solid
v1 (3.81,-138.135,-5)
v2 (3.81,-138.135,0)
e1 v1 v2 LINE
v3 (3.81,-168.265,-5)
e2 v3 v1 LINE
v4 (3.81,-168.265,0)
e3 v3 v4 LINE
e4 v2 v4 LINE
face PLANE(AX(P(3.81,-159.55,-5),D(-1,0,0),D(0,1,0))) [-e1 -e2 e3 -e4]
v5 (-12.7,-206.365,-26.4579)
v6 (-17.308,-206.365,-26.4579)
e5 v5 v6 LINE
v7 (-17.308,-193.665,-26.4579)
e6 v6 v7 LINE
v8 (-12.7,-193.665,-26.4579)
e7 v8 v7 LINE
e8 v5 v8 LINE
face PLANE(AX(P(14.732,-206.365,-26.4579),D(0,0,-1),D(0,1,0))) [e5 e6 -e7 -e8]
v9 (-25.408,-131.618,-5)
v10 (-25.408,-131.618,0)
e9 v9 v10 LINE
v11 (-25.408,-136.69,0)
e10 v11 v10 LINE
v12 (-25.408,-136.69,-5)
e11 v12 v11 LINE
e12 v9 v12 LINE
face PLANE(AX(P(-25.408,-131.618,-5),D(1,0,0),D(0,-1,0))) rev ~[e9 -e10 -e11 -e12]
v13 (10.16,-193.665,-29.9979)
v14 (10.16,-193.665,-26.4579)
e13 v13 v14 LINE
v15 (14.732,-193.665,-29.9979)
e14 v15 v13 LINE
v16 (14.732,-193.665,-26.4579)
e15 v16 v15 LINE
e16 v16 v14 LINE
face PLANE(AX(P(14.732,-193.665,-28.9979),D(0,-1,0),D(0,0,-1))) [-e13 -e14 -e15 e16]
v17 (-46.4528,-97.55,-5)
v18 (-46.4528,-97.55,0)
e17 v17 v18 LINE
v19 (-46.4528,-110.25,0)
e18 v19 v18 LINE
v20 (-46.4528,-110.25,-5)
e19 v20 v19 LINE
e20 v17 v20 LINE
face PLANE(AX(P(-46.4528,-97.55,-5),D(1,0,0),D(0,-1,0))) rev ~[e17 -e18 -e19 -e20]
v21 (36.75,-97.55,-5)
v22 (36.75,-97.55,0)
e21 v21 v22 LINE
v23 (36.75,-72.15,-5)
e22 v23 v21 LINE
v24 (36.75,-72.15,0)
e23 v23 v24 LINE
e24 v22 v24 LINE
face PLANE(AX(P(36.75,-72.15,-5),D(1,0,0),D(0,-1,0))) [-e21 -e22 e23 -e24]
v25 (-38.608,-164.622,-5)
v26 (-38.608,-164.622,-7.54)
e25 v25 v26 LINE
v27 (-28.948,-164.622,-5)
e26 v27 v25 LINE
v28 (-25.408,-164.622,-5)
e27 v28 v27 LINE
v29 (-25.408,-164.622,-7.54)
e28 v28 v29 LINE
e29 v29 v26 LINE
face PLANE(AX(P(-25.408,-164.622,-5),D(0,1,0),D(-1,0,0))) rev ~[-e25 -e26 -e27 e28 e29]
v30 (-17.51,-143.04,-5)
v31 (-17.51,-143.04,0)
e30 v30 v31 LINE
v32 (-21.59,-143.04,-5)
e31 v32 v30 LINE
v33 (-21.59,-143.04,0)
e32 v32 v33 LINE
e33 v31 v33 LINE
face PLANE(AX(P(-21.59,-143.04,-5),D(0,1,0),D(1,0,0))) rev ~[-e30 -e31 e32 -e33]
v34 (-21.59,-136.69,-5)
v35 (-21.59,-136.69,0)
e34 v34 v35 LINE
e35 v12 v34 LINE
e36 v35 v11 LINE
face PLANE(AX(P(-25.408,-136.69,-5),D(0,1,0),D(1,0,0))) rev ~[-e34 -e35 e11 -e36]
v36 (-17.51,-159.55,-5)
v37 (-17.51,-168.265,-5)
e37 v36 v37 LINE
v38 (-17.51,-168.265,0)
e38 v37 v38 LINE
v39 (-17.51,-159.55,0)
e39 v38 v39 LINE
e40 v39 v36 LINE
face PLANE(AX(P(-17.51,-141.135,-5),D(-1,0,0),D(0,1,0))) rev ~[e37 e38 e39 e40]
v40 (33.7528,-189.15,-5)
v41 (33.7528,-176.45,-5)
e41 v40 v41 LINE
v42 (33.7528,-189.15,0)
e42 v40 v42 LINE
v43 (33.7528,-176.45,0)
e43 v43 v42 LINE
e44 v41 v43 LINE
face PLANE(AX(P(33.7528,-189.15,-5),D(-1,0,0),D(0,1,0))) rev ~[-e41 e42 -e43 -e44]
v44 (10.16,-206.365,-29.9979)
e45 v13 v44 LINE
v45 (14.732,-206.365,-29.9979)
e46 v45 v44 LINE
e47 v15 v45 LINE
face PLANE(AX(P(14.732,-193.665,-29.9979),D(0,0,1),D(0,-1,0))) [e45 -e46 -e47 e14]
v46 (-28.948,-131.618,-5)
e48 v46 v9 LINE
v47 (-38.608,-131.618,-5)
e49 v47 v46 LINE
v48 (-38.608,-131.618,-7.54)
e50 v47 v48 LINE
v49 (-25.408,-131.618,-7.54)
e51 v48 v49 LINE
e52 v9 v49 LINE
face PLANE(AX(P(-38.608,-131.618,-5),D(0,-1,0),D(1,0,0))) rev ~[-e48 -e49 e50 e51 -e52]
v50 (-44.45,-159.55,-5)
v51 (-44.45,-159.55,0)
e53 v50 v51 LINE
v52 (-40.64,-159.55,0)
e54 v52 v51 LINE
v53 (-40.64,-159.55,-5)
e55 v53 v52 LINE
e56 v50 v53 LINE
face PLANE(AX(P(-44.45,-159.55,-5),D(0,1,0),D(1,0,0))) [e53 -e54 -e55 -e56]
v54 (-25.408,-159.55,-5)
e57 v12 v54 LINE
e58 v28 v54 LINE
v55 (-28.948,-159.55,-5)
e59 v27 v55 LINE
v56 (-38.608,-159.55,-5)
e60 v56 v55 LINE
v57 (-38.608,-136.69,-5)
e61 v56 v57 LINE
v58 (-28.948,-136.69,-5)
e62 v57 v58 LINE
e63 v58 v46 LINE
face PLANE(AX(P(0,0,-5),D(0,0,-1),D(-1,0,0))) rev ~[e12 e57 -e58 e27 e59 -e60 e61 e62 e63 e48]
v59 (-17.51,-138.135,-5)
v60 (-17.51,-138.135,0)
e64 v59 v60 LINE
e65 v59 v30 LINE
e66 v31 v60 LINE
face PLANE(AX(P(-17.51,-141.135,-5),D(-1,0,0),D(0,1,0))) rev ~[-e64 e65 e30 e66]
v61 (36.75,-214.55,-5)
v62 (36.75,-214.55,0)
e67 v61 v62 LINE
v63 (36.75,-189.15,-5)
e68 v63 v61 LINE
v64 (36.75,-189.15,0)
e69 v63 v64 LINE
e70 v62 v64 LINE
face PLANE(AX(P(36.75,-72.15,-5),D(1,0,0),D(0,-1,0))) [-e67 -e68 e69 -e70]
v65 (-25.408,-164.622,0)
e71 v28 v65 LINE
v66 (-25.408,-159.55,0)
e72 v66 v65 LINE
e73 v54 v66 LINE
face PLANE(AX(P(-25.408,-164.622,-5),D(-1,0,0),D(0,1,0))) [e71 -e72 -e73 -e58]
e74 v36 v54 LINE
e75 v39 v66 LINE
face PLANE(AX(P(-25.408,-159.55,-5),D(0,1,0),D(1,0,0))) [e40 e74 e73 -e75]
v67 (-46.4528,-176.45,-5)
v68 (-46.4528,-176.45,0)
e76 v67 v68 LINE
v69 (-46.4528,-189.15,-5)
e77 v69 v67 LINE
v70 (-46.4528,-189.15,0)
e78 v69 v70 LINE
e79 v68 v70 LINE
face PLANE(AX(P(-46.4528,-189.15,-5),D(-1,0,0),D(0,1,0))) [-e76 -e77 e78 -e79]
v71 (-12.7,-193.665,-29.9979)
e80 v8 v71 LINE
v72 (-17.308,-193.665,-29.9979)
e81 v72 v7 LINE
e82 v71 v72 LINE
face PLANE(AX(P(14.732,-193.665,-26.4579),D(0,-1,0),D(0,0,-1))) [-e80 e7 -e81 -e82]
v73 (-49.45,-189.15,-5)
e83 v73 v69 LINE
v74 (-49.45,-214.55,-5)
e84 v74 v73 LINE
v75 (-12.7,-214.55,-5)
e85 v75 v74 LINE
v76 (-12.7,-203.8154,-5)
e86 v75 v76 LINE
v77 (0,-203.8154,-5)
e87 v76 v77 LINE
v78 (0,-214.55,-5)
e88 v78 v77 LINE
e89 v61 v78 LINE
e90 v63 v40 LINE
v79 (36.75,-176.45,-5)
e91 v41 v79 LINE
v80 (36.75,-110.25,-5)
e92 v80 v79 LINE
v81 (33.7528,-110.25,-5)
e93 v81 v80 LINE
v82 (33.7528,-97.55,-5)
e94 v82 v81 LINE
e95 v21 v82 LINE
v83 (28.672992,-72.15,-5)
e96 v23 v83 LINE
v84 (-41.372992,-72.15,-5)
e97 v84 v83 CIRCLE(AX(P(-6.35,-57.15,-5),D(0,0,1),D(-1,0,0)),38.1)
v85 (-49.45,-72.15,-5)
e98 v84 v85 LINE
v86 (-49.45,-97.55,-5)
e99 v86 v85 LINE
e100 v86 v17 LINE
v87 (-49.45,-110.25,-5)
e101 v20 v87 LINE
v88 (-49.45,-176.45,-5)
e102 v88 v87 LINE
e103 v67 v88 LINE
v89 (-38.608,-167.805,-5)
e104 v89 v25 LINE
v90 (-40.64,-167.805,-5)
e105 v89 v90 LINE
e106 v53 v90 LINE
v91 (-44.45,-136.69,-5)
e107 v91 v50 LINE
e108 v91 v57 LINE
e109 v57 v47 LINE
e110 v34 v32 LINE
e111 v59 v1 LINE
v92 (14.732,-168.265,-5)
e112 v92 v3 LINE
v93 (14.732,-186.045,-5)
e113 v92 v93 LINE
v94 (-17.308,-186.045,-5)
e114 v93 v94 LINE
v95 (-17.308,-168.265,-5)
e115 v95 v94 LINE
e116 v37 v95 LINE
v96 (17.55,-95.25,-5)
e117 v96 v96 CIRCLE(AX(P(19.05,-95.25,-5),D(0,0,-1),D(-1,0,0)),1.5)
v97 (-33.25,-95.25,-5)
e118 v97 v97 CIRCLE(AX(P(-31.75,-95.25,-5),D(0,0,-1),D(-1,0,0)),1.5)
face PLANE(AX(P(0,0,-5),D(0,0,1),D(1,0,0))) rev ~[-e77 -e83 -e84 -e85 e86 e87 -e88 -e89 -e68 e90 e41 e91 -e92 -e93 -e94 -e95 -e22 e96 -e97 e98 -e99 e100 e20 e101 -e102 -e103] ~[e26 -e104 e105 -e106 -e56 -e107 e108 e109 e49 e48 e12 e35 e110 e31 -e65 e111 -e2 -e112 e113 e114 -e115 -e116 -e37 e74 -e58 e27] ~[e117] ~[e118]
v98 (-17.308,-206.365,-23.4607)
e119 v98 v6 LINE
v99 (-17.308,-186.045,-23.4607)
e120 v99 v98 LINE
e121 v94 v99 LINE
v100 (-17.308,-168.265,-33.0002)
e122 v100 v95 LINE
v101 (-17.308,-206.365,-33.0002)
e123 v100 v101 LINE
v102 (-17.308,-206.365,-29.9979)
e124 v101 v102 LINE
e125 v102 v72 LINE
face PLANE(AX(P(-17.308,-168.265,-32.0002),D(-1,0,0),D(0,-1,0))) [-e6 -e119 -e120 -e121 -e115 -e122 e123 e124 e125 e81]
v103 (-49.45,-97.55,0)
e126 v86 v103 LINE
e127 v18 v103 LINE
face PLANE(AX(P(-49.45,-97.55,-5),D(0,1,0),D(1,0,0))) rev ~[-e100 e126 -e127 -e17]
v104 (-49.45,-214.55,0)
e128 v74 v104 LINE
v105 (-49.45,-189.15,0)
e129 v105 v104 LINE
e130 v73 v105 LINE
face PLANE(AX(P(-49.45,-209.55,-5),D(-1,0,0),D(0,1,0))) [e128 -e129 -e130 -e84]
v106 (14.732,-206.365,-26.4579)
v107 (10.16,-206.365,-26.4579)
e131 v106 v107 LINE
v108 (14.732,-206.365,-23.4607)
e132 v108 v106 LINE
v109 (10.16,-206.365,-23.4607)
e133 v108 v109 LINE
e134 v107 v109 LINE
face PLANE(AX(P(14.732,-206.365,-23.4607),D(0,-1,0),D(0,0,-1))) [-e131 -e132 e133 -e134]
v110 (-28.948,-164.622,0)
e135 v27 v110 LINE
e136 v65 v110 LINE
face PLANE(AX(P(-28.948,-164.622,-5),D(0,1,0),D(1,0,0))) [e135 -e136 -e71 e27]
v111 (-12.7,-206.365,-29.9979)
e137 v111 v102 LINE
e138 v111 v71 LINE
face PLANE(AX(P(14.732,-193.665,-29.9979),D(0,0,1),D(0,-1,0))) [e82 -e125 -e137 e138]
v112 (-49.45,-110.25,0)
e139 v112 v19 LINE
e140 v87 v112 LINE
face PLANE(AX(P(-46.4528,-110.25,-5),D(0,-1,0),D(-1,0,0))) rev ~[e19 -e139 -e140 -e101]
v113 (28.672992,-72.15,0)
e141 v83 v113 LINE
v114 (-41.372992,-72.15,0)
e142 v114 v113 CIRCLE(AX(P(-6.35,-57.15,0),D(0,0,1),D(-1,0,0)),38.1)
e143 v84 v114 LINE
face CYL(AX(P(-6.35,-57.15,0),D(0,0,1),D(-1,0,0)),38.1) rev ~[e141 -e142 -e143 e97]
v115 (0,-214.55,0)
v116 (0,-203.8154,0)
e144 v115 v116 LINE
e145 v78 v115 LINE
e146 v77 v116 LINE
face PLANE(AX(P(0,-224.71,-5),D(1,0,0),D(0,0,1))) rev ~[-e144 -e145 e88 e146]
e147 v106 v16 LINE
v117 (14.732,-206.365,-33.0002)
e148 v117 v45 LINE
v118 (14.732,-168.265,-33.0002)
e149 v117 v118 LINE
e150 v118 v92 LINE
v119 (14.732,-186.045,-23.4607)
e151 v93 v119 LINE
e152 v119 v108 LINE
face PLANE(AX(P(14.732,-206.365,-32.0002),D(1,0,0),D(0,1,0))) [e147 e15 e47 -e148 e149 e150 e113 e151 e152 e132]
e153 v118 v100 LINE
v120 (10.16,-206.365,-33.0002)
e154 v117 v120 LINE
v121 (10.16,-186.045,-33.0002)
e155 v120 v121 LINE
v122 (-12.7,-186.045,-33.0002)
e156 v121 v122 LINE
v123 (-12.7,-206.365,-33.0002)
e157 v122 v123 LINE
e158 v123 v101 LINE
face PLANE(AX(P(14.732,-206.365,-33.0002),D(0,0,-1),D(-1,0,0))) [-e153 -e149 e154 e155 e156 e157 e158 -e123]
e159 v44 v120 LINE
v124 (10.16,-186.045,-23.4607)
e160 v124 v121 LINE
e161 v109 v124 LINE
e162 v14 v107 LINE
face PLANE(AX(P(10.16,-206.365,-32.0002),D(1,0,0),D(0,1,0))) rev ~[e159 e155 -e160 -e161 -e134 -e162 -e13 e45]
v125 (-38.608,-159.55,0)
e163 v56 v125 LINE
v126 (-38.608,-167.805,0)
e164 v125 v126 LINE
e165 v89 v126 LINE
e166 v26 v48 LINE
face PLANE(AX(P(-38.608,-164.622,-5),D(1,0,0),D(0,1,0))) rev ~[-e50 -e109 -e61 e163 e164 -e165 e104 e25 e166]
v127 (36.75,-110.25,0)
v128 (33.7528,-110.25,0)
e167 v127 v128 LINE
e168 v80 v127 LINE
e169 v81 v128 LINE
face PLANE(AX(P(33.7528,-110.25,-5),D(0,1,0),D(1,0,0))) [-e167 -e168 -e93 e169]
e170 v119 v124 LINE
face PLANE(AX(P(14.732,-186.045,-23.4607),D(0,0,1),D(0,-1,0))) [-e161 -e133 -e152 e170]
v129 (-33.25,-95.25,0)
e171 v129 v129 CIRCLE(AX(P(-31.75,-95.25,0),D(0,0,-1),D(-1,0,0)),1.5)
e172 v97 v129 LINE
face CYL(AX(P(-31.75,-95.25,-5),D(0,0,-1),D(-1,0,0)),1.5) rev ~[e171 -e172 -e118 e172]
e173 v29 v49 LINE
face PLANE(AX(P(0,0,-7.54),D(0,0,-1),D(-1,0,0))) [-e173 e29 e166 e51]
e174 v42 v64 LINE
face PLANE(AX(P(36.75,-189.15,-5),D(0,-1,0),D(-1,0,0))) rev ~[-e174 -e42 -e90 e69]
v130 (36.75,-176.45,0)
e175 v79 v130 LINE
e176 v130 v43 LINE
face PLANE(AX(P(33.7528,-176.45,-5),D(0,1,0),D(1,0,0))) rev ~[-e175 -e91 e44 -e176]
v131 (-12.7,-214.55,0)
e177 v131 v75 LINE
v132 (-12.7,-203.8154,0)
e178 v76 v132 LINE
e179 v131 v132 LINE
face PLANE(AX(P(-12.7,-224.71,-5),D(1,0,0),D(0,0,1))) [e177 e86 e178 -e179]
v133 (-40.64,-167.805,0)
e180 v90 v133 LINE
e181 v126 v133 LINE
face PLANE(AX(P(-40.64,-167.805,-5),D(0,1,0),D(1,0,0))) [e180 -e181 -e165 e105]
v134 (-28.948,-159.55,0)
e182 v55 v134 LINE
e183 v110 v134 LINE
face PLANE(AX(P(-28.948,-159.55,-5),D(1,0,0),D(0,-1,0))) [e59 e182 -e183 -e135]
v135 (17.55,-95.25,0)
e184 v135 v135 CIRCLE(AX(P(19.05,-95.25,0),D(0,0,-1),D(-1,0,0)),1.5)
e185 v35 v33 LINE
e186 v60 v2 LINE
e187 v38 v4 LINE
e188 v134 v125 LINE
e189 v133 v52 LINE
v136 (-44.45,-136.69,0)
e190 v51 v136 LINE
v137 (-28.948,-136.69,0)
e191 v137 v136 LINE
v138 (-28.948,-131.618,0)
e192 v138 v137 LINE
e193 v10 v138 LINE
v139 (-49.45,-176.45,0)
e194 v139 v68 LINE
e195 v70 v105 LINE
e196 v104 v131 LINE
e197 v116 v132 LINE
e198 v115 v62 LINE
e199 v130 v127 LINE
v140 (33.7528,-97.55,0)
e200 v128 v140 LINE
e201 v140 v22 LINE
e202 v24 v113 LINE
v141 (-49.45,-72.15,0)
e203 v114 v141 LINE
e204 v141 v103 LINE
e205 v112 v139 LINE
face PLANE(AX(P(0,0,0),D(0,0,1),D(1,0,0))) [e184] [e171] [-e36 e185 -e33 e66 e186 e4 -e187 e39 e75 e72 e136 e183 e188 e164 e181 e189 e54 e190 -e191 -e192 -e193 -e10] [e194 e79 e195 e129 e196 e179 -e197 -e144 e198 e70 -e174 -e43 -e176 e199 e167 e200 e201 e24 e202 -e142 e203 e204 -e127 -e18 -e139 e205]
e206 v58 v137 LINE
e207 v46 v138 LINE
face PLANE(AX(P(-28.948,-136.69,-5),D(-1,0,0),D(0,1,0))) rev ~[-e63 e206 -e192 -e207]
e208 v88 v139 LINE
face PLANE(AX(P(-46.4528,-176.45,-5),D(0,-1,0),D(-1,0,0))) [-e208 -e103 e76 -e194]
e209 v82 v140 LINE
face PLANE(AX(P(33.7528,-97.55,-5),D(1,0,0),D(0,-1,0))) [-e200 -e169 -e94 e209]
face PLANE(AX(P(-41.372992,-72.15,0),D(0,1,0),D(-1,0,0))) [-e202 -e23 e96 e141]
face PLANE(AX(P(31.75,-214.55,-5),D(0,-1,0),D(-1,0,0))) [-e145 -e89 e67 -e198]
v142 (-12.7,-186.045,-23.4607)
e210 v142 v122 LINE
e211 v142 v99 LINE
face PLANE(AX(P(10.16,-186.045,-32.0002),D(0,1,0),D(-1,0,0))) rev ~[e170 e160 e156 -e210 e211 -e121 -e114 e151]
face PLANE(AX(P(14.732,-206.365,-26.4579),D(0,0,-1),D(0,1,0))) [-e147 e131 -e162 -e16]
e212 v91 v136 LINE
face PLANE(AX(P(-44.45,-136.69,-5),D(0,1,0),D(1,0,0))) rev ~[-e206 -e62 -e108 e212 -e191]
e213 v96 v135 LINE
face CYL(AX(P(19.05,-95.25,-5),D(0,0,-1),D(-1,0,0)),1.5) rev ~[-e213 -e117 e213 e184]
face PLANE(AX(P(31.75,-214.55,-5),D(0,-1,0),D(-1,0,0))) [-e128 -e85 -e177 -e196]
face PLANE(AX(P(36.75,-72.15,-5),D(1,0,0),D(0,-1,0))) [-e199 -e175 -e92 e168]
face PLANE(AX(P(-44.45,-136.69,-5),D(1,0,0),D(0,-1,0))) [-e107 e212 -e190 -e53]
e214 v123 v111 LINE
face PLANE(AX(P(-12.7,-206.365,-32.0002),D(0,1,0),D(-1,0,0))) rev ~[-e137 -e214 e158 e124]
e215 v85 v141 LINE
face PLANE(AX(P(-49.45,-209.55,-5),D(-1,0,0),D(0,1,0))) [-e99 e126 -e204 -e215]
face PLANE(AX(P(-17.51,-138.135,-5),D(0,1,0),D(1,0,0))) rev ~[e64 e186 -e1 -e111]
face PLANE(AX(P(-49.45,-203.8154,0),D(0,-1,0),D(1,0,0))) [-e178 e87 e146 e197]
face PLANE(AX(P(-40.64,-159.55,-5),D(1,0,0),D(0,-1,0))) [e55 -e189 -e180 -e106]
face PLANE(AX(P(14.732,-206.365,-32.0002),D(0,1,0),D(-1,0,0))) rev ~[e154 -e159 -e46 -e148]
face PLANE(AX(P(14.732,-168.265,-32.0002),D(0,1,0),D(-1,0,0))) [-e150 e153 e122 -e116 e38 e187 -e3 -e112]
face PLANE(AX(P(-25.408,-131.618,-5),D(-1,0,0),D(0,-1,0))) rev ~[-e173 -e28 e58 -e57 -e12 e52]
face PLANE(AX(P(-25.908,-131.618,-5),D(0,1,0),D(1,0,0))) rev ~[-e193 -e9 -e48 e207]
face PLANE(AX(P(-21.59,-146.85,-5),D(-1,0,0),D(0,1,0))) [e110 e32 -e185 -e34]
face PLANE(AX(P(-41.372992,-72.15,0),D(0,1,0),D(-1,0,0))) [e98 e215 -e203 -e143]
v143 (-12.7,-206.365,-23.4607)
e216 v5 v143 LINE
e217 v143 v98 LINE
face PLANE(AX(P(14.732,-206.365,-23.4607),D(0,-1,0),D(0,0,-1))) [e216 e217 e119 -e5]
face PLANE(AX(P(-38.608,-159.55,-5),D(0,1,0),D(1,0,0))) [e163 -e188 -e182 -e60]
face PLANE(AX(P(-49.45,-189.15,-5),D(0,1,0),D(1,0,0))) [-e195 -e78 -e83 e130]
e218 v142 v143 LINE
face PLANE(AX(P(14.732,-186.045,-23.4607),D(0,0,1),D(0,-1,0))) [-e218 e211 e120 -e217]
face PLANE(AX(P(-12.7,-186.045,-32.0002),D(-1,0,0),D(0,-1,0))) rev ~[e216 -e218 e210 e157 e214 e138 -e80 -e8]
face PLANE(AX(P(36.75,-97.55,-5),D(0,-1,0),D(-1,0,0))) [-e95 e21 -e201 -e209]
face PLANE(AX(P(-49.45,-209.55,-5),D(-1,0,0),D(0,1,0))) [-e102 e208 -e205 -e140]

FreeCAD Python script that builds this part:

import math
import FreeCAD as App
import Part
import Sketcher

V = App.Vector
Q = App.Units.Quantity


def add_polygon(sketch, points):
    """Adds a closed chain of lines whose ends are joined by coincident constraints."""
    first, n = sketch.GeometryCount, len(points)
    for a, b in zip(points, points[1:] + points[:1]):
        sketch.addGeometry(Part.LineSegment(App.Vector(*a, 0), App.Vector(*b, 0)), False)
    for i in range(n):
        sketch.addConstraint(Sketcher.Constraint("Coincident", first + i, 2, first + (i + 1) % n, 1))

doc = App.newDocument("Part")
body = doc.addObject("PartDesign::Body", "Body")

# Sketch on XY plane
sketch1 = body.newObject("Sketcher::SketchObject", "Sketch")
sketch1.AttachmentSupport = (doc.getObject("XY_Plane"), [""])
sketch1.MapMode = "FlatFace"
sketch1.addGeometry([
    Part.LineSegment(V(32, -210, 0), V(32, -57, 0)),
    Part.ArcOfCircle(Part.Circle(V(-6, -57, 0), V(0, 0, 1), 38), math.radians(180), math.radians(360)),
    Part.LineSegment(V(-44, -57, 0), V(-44, -210, 0)),
    Part.LineSegment(V(-44, -210, 0), V(32, -210, 0)),
], False)
sketch1.addConstraint([
    Sketcher.Constraint("Tangent", 0, 2, 1, 2),
    Sketcher.Constraint("Tangent", 1, 1, 2, 1),
    Sketcher.Constraint("Coincident", 2, 2, 3, 1),
    Sketcher.Constraint("Coincident", 3, 2, 0, 1),
    Sketcher.Constraint("Vertical", 0),
    Sketcher.Constraint("Vertical", 2),
    Sketcher.Constraint("Horizontal", 3),
    Sketcher.Constraint("Radius", 1, Q("1.5 in")),
    Sketcher.Constraint("DistanceY", 0, 1, 0, 2, Q("6 in")),
    Sketcher.Constraint("DistanceX", 1, 3, -1, 1, Q("0.25 in")),
    Sketcher.Constraint("DistanceY", 1, 3, -1, 1, Q("2.25 in")),
])
pad1 = body.newObject("PartDesign::Pad", "Pad")
pad1.Profile = sketch1
pad1.Length = 5
pad1.Reversed = True

# Sketch on XY plane
sketch2 = body.newObject("Sketcher::SketchObject", "Sketch001")
sketch2.AttachmentSupport = (doc.getObject("XY_Plane"), [""])
sketch2.MapMode = "FlatFace"
add_polygon(sketch2, [(32, -57), (-44, -57), (-44, -72), (32, -72)])  # lines 0-3
sketch2.addConstraint([
    Sketcher.Constraint("Horizontal", 0),
    Sketcher.Constraint("Vertical", 1),
    Sketcher.Constraint("Horizontal", 2),
    Sketcher.Constraint("Vertical", 3),
    Sketcher.Constraint("DistanceX", 0, 2, 0, 1, Q("3 in")),
    Sketcher.Constraint("DistanceY", 1, 2, 1, 1, Q("15 mm")),
    Sketcher.Constraint("DistanceX", 0, 2, -1, 1, Q("1.75 in")),
    Sketcher.Constraint("DistanceY", 0, 2, -1, 1, Q("2.25 in")),
])
pocket1 = body.newObject("PartDesign::Pocket", "Pocket")
pocket1.Profile = sketch2
pocket1.Length = 5

# Sketch on XY plane
sketch3 = body.newObject("Sketcher::SketchObject", "Sketch002")
sketch3.AttachmentSupport = (doc.getObject("XY_Plane"), [""])
sketch3.MapMode = "FlatFace"
sketch3.AttachmentOffset = App.Placement(V(0, 0, -5), App.Rotation())
add_polygon(sketch3, [(4, -138), (4, -168), (-18, -168), (-18, -138)])  # lines 0-3
sketch3.addConstraint([
    Sketcher.Constraint("Vertical", 0),
    Sketcher.Constraint("Horizontal", 1),
    Sketcher.Constraint("Vertical", 2),
    Sketcher.Constraint("Horizontal", 3),
    Sketcher.Constraint("DistanceX", -1, 1, 0, 2, Q("0.15 in")),
    Sketcher.Constraint("DistanceX", 1, 2, 1, 1, Q("21.32 mm")),
    Sketcher.Constraint("DistanceY", 0, 2, 0, 1, Q("30.13 mm")),
    Sketcher.Constraint("DistanceY", 0, 2, -1, 1, Q("6.6246 in")),
])
pocket2 = body.newObject("PartDesign::Pocket", "Pocket001")
pocket2.Profile = sketch3
pocket2.Length = 5
pocket2.Reversed = True

# Sketch on XY plane
sketch4 = body.newObject("Sketcher::SketchObject", "Sketch003")
sketch4.AttachmentSupport = (doc.getObject("XY_Plane"), [""])
sketch4.MapMode = "FlatFace"
sketch4.AttachmentOffset = App.Placement(V(0, 0, -5), App.Rotation())
add_polygon(sketch4, [(32, -210), (32, -72), (37, -72), (37, -215), (-49, -215), (-49, -72), (-44, -72), (-44, -210)])  # lines 0-7
sketch4.addConstraint([
    Sketcher.Constraint("Vertical", 0),
    Sketcher.Constraint("Horizontal", 1),
    Sketcher.Constraint("Vertical", 2),
    Sketcher.Constraint("Horizontal", 3),
    Sketcher.Constraint("Vertical", 4),
    Sketcher.Constraint("Horizontal", 5),
    Sketcher.Constraint("Vertical", 6),
    Sketcher.Constraint("Horizontal", 7),
    Sketcher.Constraint("Horizontal", 1, 2, 4, 2),
    Sketcher.Constraint("Equal", 1, 5),
    Sketcher.Constraint("DistanceX", 7, 1, 7, 2, Q("3 in")),
    Sketcher.Constraint("DistanceX", 1, 1, 1, 2, Q("5 mm")),
    Sketcher.Constraint("DistanceX", -1, 1, 0, 2, Q("1.25 in")),
    Sketcher.Constraint("DistanceY", 6, 2, -1, 1, Q("8.25 in")),
    Sketcher.Constraint("DistanceY", 3, 2, 6, 2, Q("5 mm")),
    Sketcher.Constraint("DistanceY", 2, 2, 2, 1, Q("5.6063 in")),
])
pad2 = body.newObject("PartDesign::Pad", "Pad001")
pad2.Profile = sketch4
pad2.Length = 5

# Sketch on XZ plane
sketch5 = body.newObject("Sketcher::SketchObject", "Sketch004")
sketch5.AttachmentSupport = (doc.getObject("XZ_Plane"), [""])
sketch5.MapMode = "FlatFace"
sketch5.AttachmentOffset = App.Placement(V(0, 0, 214.55), App.Rotation())
add_polygon(sketch5, [(0, 0), (-13, 0), (-13, -5), (0, -5)])  # lines 0-3
sketch5.addConstraint([
    Sketcher.Constraint("Horizontal", 0),
    Sketcher.Constraint("Vertical", 1),
    Sketcher.Constraint("Horizontal", 2),
    Sketcher.Constraint("Vertical", 3),
    Sketcher.Constraint("Coincident", 3, 2, -1, 1),
    Sketcher.Constraint("DistanceX", 0, 2, 0, 1, Q("0.5 in")),
    Sketcher.Constraint("DistanceY", 1, 2, 1, 1, Q("5 mm")),
])
pad3 = body.newObject("PartDesign::Pad", "Pad002")
pad3.Profile = sketch5
pad3.Length = Q("0.4 in")

# Sketch on XY plane
sketch6 = body.newObject("Sketcher::SketchObject", "Sketch005")
sketch6.AttachmentSupport = (doc.getObject("XY_Plane"), [""])
sketch6.MapMode = "FlatFace"
sketch6.AttachmentOffset = App.Placement(V(0, 0, -5), App.Rotation())
sketch6.addGeometry(Part.Circle(V(-6.3, -220.9, 0), V(0, 0, 1), 1.8), False)
sketch6.addConstraint([
    Sketcher.Constraint("Diameter", 0, Q("0.1378 in")),
    Sketcher.Constraint("DistanceX", 0, 3, -1, 1, Q("0.25 in")),
    Sketcher.Constraint("DistanceY", 0, 3, -1, 1, Q("220.9 mm")),
])
pocket3 = body.newObject("PartDesign::Pocket", "Pocket002")
pocket3.Profile = sketch6
pocket3.Length = Q("0.25 in")
pocket3.Reversed = True

# Sketch on XY plane
sketch7 = body.newObject("Sketcher::SketchObject", "Sketch006")
sketch7.AttachmentSupport = (doc.getObject("XY_Plane"), [""])
sketch7.MapMode = "FlatFace"
sketch7.AttachmentOffset = App.Placement(V(0, 0, -5), App.Rotation())
add_polygon(sketch7, [(-44.5, -136.7), (-28.9, -136.7), (-28.9, -131.6), (-25.4, -131.6), (-25.4, -136.7), (-21.6, -136.7), (-21.6, -146.8), (-16.5, -146.8), (-16.5, -159.6), (-25.4, -159.6), (-25.4, -164.6), (-28.9, -164.6), (-28.9, -159.6), (-38.6, -159.6), (-38.6, -167.8), (-40.6, -167.8), (-40.6, -159.6), (-44.5, -159.6)])  # lines 0-17
sketch7.addConstraint([
    Sketcher.Constraint("Horizontal", 0),
    Sketcher.Constraint("Vertical", 1),
    Sketcher.Constraint("Horizontal", 2),
    Sketcher.Constraint("Vertical", 3),
    Sketcher.Constraint("Horizontal", 4),
    Sketcher.Constraint("Vertical", 5),
    Sketcher.Constraint("Horizontal", 6),
    Sketcher.Constraint("Vertical", 7),
    Sketcher.Constraint("Horizontal", 8),
    Sketcher.Constraint("Vertical", 9),
    Sketcher.Constraint("Horizontal", 10),
    Sketcher.Constraint("Vertical", 11),
    Sketcher.Constraint("Horizontal", 12),
    Sketcher.Constraint("Vertical", 13),
    Sketcher.Constraint("Horizontal", 14),
    Sketcher.Constraint("Vertical", 15),
    Sketcher.Constraint("Horizontal", 16),
    Sketcher.Constraint("Vertical", 17),
    Sketcher.Constraint("Horizontal", 0, 2, 3, 2),
    Sketcher.Constraint("Horizontal", 8, 2, 11, 2),
    Sketcher.Constraint("Horizontal", 12, 2, 15, 2),
    Sketcher.Constraint("Vertical", 3, 2, 8, 2),
    Sketcher.Constraint("Vertical", 1, 2, 10, 2),
    Sketcher.Constraint("Equal", 3, 9),
    Sketcher.Constraint("DistanceY", 13, 2, 13, 1, Q("0.325 in")),
    Sketcher.Constraint("DistanceX", 6, 1, 6, 2, Q("0.2 in")),
    Sketcher.Constraint("DistanceY", 5, 2, 5, 1, Q("0.4 in")),
    Sketcher.Constraint("DistanceY", 7, 2, 7, 1, Q("0.5 in")),
    Sketcher.Constraint("DistanceX", 14, 2, 14, 1, Q("0.08 in")),
    Sketcher.Constraint("DistanceX", 16, 2, 16, 1, Q("0.15 in")),
    Sketcher.Constraint("DistanceX", 14, 2, -1, 1, Q("1.6 in")),
    Sketcher.Constraint("DistanceX", 17, 2, 4, 2, Q("0.9 in")),
    Sketcher.Constraint("DistanceX", 0, 1, 0, 2, Q("15.502 mm")),
    Sketcher.Constraint("DistanceX", 2, 1, 2, 2, Q("3.54 mm")),
    Sketcher.Constraint("DistanceY", 1, 1, 1, 2, Q("5.072 mm")),
    Sketcher.Constraint("DistanceY", 0, 2, -1, 1, Q("5.3815 in")),
])
pocket4 = body.newObject("PartDesign::Pocket", "Pocket003")
pocket4.Profile = sketch7
pocket4.Length = Q("1 in")
pocket4.Reversed = True

# Sketch on XY plane
sketch8 = body.newObject("Sketcher::SketchObject", "Sketch007")
sketch8.AttachmentSupport = (doc.getObject("XY_Plane"), [""])
sketch8.MapMode = "FlatFace"
sketch8.AttachmentOffset = App.Placement(V(0, 0, -5), App.Rotation())
add_polygon(sketch8, [(36.8, -97.5), (36.8, -110.2), (33.8, -110.2), (33.8, -97.5)])  # lines 0-3
add_polygon(sketch8, [(36.8, -176.4), (36.8, -189.2), (33.8, -189.2), (33.8, -176.4)])  # lines 4-7
add_polygon(sketch8, [(-46.5, -189.2), (-49.5, -189.2), (-49.5, -176.4), (-46.5, -176.4)])  # lines 8-11
add_polygon(sketch8, [(-46.5, -110.2), (-49.5, -110.2), (-49.5, -97.5), (-46.5, -97.5)])  # lines 12-15
sketch8.addConstraint([
    Sketcher.Constraint("Vertical", 0),
    Sketcher.Constraint("Horizontal", 1),
    Sketcher.Constraint("Vertical", 2),
    Sketcher.Constraint("Horizontal", 3),
    Sketcher.Constraint("Vertical", 4),
    Sketcher.Constraint("Horizontal", 5),
    Sketcher.Constraint("Vertical", 6),
    Sketcher.Constraint("Horizontal", 7),
    Sketcher.Constraint("Horizontal", 8),
    Sketcher.Constraint("Vertical", 9),
    Sketcher.Constraint("Horizontal", 10),
    Sketcher.Constraint("Vertical", 11),
    Sketcher.Constraint("Horizontal", 12),
    Sketcher.Constraint("Vertical", 13),
    Sketcher.Constraint("Horizontal", 14),
    Sketcher.Constraint("Vertical", 15),
    Sketcher.Constraint("Horizontal", 5, 2, 8, 2),
    Sketcher.Constraint("Horizontal", 7, 2, 9, 2),
    Sketcher.Constraint("Horizontal", 1, 2, 12, 2),
    Sketcher.Constraint("Horizontal", 3, 2, 13, 2),
    Sketcher.Constraint("Vertical", 3, 2, 4, 2),
    Sketcher.Constraint("Vertical", 2, 2, 5, 2),
    Sketcher.Constraint("Vertical", 9, 2, 12, 2),
    Sketcher.Constraint("Vertical", 11, 2, 14, 2),
    Sketcher.Constraint("Equal", 7, 8),
    Sketcher.Constraint("Equal", 2, 4),
    Sketcher.Constraint("DistanceY", 0, 2, 0, 1, Q("0.5 in")),
    Sketcher.Constraint("DistanceX", 1, 2, 1, 1, Q("0.118 in")),
    Sketcher.Constraint("DistanceY", 4, 2, 0, 2, Q("3.1063 in")),
    Sketcher.Constraint("DistanceX", 8, 2, 5, 2, Q("3.2757 in")),
    Sketcher.Constraint("DistanceX", -1, 1, 0, 2, Q("36.75 mm")),
    Sketcher.Constraint("DistanceY", 0, 2, -1, 1, Q("110.25 mm")),
])
pocket5 = body.newObject("PartDesign::Pocket", "Pocket004")
pocket5.Profile = sketch8
pocket5.Length = Q("0.3937008 in")
pocket5.Reversed = True

# Sketch on XZ plane
sketch9 = body.newObject("Sketcher::SketchObject", "Sketch008")
sketch9.AttachmentSupport = (doc.getObject("XZ_Plane"), [""])
sketch9.MapMode = "FlatFace"
sketch9.AttachmentOffset = App.Placement(V(0, 0, 224.71), App.Rotation())
add_polygon(sketch9, [(-13, 0), (-13, -5), (0, -5), (0, 0)])  # lines 0-3
sketch9.addConstraint([
    Sketcher.Constraint("Vertical", 0),
    Sketcher.Constraint("Horizontal", 1),
    Sketcher.Constraint("Vertical", 2),
    Sketcher.Constraint("Horizontal", 3),
    Sketcher.Constraint("Coincident", 2, 2, -1, 1),
    Sketcher.Constraint("DistanceX", 1, 1, 1, 2, Q("0.5 in")),
    Sketcher.Constraint("DistanceY", 0, 2, 0, 1, Q("5 mm")),
])
pocket6 = body.newObject("PartDesign::Pocket", "Pocket005")
pocket6.Profile = sketch9
pocket6.Length = 20.8946

# Sketch on XY plane
sketch10 = body.newObject("Sketcher::SketchObject", "Sketch009")
sketch10.AttachmentSupport = (doc.getObject("XY_Plane"), [""])
sketch10.MapMode = "FlatFace"
sketch10.AttachmentOffset = App.Placement(V(0, 0, -5), App.Rotation())
add_polygon(sketch10, [(-25, -132), (-25, -165), (-39, -165), (-39, -132)])  # lines 0-3
sketch10.addConstraint([
    Sketcher.Constraint("Vertical", 0),
    Sketcher.Constraint("Horizontal", 1),
    Sketcher.Constraint("Vertical", 2),
    Sketcher.Constraint("Horizontal", 3),
    Sketcher.Constraint("DistanceX", 1, 2, -1, 1, Q("1.52 in")),
    Sketcher.Constraint("DistanceX", 1, 2, 1, 1, Q("13.2 mm")),
    Sketcher.Constraint("DistanceY", 0, 2, 0, 1, Q("33.004 mm")),
    Sketcher.Constraint("DistanceY", 2, 2, -1, 1, Q("5.1818 in")),
])
pad4 = body.newObject("PartDesign::Pad", "Pad003")
pad4.Profile = sketch10
pad4.Length = Q("0.1 in")
pad4.Reversed = True

# Sketch on YZ plane
sketch11 = body.newObject("Sketcher::SketchObject", "Sketch010")
sketch11.AttachmentSupport = (doc.getObject("YZ_Plane"), [""])
sketch11.MapMode = "FlatFace"
sketch11.AttachmentOffset = App.Placement(V(0, 0, 0.58 * 25.4), App.Rotation())
add_polygon(sketch11, [(-168.3, -32), (-168.3, -5), (-186, -5), (-186, -23.5), (-206.4, -23.5), (-206.4, -26.5), (-193.7, -26.5), (-193.7, -29), (-206.4, -29), (-206.4, -32)])  # lines 0-9
sketch11.addConstraint([
    Sketcher.Constraint("Vertical", 0),
    Sketcher.Constraint("Horizontal", 1),
    Sketcher.Constraint("Vertical", 2),
    Sketcher.Constraint("Horizontal", 3),
    Sketcher.Constraint("Vertical", 4),
    Sketcher.Constraint("Horizontal", 5),
    Sketcher.Constraint("Vertical", 6),
    Sketcher.Constraint("Horizontal", 7),
    Sketcher.Constraint("Vertical", 8),
    Sketcher.Constraint("Horizontal", 9),
    Sketcher.Constraint("Vertical", 4, 2, 7, 2),
    Sketcher.Constraint("DistanceX", 1, 2, 1, 1, Q("0.7 in")),
    Sketcher.Constraint("DistanceX", 3, 2, 3, 1, Q("0.8 in")),
    Sketcher.Constraint("DistanceX", 5, 1, 5, 2, Q("0.5 in")),
    Sketcher.Constraint("DistanceY", 6, 2, 6, 1, Q("0.1 in")),
    Sketcher.Constraint("DistanceY", 0, 1, 0, 2, Q("1.063 in")),
    Sketcher.Constraint("DistanceY", 4, 2, 4, 1, Q("0.118 in")),
    Sketcher.Constraint("DistanceY", 2, 2, 2, 1, Q("0.7268 in")),
    Sketcher.Constraint("DistanceX", 0, 2, -1, 1, Q("6.6246 in")),
    Sketcher.Constraint("DistanceY", 0, 2, -1, 1, Q("5 mm")),
])
pad5 = body.newObject("PartDesign::Pad", "Pad004")
pad5.Profile = sketch11
pad5.Length = 32.04
pad5.Reversed = True

# Sketch on XY plane
sketch12 = body.newObject("Sketcher::SketchObject", "Sketch011")
sketch12.AttachmentSupport = (doc.getObject("XY_Plane"), [""])
sketch12.MapMode = "FlatFace"
sketch12.AttachmentOffset = App.Placement(V(0, 0, -32.0002), App.Rotation())
add_polygon(sketch12, [(10, -186), (10, -206), (-13, -206), (-13, -186)])  # lines 0-3
sketch12.addConstraint([
    Sketcher.Constraint("Vertical", 0),
    Sketcher.Constraint("Horizontal", 1),
    Sketcher.Constraint("Vertical", 2),
    Sketcher.Constraint("Horizontal", 3),
    Sketcher.Constraint("DistanceY", 0, 2, 0, 1, Q("0.8 in")),
    Sketcher.Constraint("DistanceX", 1, 2, 1, 1, Q("0.9 in")),
    Sketcher.Constraint("DistanceX", -1, 1, 0, 2, Q("0.4 in")),
    Sketcher.Constraint("DistanceY", 0, 2, -1, 1, Q("8.1246 in")),
])
pocket7 = body.newObject("PartDesign::Pocket", "Pocket006")
pocket7.Profile = sketch12
pocket7.Length = Q("0.3937008 in")
pocket7.Reversed = True

# Sketch on XY plane
sketch13 = body.newObject("Sketcher::SketchObject", "Sketch012")
sketch13.AttachmentSupport = (doc.getObject("XY_Plane"), [""])
sketch13.MapMode = "FlatFace"
sketch13.AttachmentOffset = App.Placement(V(0, 0, -5), App.Rotation())
sketch13.addGeometry([
    Part.Circle(V(-31.8, -95.2, 0), V(0, 0, 1), 1.5),
    Part.Circle(V(19.1, -95.2, 0), V(0, 0, 1), 1.5),
], False)
sketch13.addConstraint([
    Sketcher.Constraint("Equal", 0, 1),
    Sketcher.Constraint("Horizontal", 0, 3, 1, 3),
    Sketcher.Constraint("Diameter", 0, Q("0.1181 in")),
    Sketcher.Constraint("DistanceX", 0, 3, 1, 3, Q("2 in")),
    Sketcher.Constraint("DistanceX", 0, 3, -1, 1, Q("1.25 in")),
    Sketcher.Constraint("DistanceY", 0, 3, -1, 1, Q("3.75 in")),
])
pocket8 = body.newObject("PartDesign::Pocket", "Pocket007")
pocket8.Profile = sketch13
pocket8.Length = Q("0.3937008 in")
pocket8.Reversed = True

# Sketch on XY plane
sketch14 = body.newObject("Sketcher::SketchObject", "Sketch013")
sketch14.AttachmentSupport = (doc.getObject("XY_Plane"), [""])
sketch14.MapMode = "FlatFace"
sketch14.AttachmentOffset = App.Placement(V(0, 0, -32.0002), App.Rotation())
add_polygon(sketch14, [(14.7, -206.4), (10.2, -206.4), (10.2, -186), (-12.7, -186), (-12.7, -206.4), (-17.3, -206.4), (-17.3, -168.3), (14.7, -168.3)])  # lines 0-7
sketch14.addConstraint([
    Sketcher.Constraint("Horizontal", 0),
    Sketcher.Constraint("Vertical", 1),
    Sketcher.Constraint("Horizontal", 2),
    Sketcher.Constraint("Vertical", 3),
    Sketcher.Constraint("Horizontal", 4),
    Sketcher.Constraint("Vertical", 5),
    Sketcher.Constraint("Horizontal", 6),
    Sketcher.Constraint("Vertical", 7),
    Sketcher.Constraint("Horizontal", 0, 2, 3, 2),
    Sketcher.Constraint("DistanceX", 2, 2, 2, 1, Q("0.9 in")),
    Sketcher.Constraint("DistanceY", 1, 1, 1, 2, Q("0.8 in")),
    Sketcher.Constraint("DistanceY", 5, 1, 5, 2, Q("1.5 in")),
    Sketcher.Constraint("DistanceX", 0, 2, 0, 1, Q("0.18 in")),
    Sketcher.Constraint("DistanceX", -1, 1, 0, 2, Q("0.4 in")),
    Sketcher.Constraint("DistanceX", 4, 2, 4, 1, Q("4.608 mm")),
    Sketcher.Constraint("DistanceY", 0, 2, -1, 1, Q("8.1246 in")),
])
pad6 = body.newObject("PartDesign::Pad", "Pad005")
pad6.Profile = sketch14
pad6.Length = 1
pad6.Reversed = True

# Sketch on YZ plane
sketch15 = body.newObject("Sketcher::SketchObject", "Sketch014")
sketch15.AttachmentSupport = (doc.getObject("YZ_Plane"), [""])
sketch15.MapMode = "FlatFace"
sketch15.AttachmentOffset = App.Placement(V(0, 0, 0.58 * 25.4), App.Rotation())
add_polygon(sketch15, [(-193.7, -29), (-206.4, -29), (-206.4, -30), (-193.7, -30)])  # lines 0-3
sketch15.addConstraint([
    Sketcher.Constraint("Horizontal", 0),
    Sketcher.Constraint("Vertical", 1),
    Sketcher.Constraint("Horizontal", 2),
    Sketcher.Constraint("Vertical", 3),
    Sketcher.Constraint("DistanceX", 0, 2, 0, 1, Q("0.5 in")),
    Sketcher.Constraint("DistanceY", 1, 2, 1, 1, Q("1 mm")),
    Sketcher.Constraint("DistanceX", 0, 2, -1, 1, Q("8.1246 in")),
    Sketcher.Constraint("DistanceY", 0, 2, -1, 1, Q("28.998 mm")),
])
pocket9 = body.newObject("PartDesign::Pocket", "Pocket008")
pocket9.Profile = sketch15
pocket9.Length = Q("122 in")

# Sketch on XY plane
sketch16 = body.newObject("Sketcher::SketchObject", "Sketch015")
sketch16.AttachmentSupport = (doc.getObject("XY_Plane"), [""])
sketch16.MapMode = "FlatFace"
sketch16.AttachmentOffset = App.Placement(V(0, 0, -5), App.Rotation())
add_polygon(sketch16, [(-17.5, -146.8), (-21.6, -146.8), (-21.6, -143), (-17.5, -143)])  # lines 0-3
sketch16.addConstraint([
    Sketcher.Constraint("Horizontal", 0),
    Sketcher.Constraint("Vertical", 1),
    Sketcher.Constraint("Horizontal", 2),
    Sketcher.Constraint("Vertical", 3),
    Sketcher.Constraint("DistanceY", 1, 1, 1, 2, Q("0.15 in")),
    Sketcher.Constraint("DistanceX", 0, 2, -1, 1, Q("0.85 in")),
    Sketcher.Constraint("DistanceX", 0, 2, 0, 1, Q("4.08 mm")),
    Sketcher.Constraint("DistanceY", 0, 2, -1, 1, Q("5.7815 in")),
])
pocket10 = body.newObject("PartDesign::Pocket", "Pocket009")
pocket10.Profile = sketch16
pocket10.Length = Q("122 in")
pocket10.Reversed = True

doc.recompute()
